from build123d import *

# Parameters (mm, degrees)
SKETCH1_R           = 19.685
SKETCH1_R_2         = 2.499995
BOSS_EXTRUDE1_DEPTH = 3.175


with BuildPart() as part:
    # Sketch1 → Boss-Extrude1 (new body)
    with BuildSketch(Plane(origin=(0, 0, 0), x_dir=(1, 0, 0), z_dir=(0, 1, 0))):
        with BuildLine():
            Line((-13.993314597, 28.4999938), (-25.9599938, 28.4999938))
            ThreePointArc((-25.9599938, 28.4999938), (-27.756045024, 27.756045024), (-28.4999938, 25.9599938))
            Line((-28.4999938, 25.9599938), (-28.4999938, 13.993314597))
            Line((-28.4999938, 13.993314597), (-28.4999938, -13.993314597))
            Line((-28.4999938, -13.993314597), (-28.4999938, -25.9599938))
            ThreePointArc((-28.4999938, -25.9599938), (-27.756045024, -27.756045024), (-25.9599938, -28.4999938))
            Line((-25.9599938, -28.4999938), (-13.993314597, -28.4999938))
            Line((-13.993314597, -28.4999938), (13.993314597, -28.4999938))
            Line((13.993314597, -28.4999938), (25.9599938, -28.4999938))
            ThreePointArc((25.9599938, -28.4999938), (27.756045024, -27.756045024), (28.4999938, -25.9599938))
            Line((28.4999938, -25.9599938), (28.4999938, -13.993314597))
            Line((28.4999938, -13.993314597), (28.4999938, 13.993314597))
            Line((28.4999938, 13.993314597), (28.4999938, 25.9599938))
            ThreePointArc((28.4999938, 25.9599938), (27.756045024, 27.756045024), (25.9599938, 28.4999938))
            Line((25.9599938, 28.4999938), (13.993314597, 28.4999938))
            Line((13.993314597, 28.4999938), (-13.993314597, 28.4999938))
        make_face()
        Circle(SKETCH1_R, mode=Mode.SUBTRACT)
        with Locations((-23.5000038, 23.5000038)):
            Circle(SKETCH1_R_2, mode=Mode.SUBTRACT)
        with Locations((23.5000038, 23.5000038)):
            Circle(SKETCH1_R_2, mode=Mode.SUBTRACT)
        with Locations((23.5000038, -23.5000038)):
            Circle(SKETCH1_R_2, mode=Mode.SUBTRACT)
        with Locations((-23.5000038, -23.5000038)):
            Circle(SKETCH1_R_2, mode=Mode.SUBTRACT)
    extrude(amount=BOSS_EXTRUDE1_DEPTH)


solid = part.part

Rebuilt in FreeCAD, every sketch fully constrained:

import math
import FreeCAD as App
import Part
import Sketcher

V = App.Vector
Q = App.Units.Quantity

doc = App.newDocument("Part")
body = doc.addObject("PartDesign::Body", "Body")

sketch1 = body.newObject("Sketcher::SketchObject", "Sketch")
sketch1.AttachmentSupport = (doc.getObject("XZ_Plane"), [""])
sketch1.MapMode = "FlatFace"
sketch1.addGeometry([
    Part.ArcOfCircle(Part.Circle(V(-26, -26, 0), V(0, 0, 1), 2.5), math.radians(-180), math.radians(-90)),
    Part.LineSegment(V(-28.5, -26, 0), V(-28.5, 26, 0)),
    Part.ArcOfCircle(Part.Circle(V(-26, 26, 0), V(0, 0, 1), 2.5), math.radians(90), math.radians(180)),
    Part.LineSegment(V(-26, 28.5, 0), V(26, 28.5, 0)),
    Part.ArcOfCircle(Part.Circle(V(26, 26, 0), V(0, 0, 1), 2.5), math.radians(0), math.radians(90)),
    Part.LineSegment(V(28.5, 26, 0), V(28.5, -26, 0)),
    Part.ArcOfCircle(Part.Circle(V(26, -26, 0), V(0, 0, 1), 2.5), math.radians(-90), math.radians(0)),
    Part.LineSegment(V(26, -28.5, 0), V(-26, -28.5, 0)),
    Part.Circle(V(-23.5, 23.5, 0), V(0, 0, 1), 2.5),
    Part.Circle(V(23.5, 23.5, 0), V(0, 0, 1), 2.5),
    Part.Circle(V(-23.5, -23.5, 0), V(0, 0, 1), 2.5),
    Part.Circle(V(0, 0, 0), V(0, 0, 1), 19.7),
    Part.Circle(V(23.5, -23.5, 0), V(0, 0, 1), 2.5),
], False)
sketch1.addConstraint([
    Sketcher.Constraint("Tangent", 0, 1, 1, 1),
    Sketcher.Constraint("Tangent", 1, 2, 2, 2),
    Sketcher.Constraint("Tangent", 2, 1, 3, 1),
    Sketcher.Constraint("Tangent", 3, 2, 4, 2),
    Sketcher.Constraint("Tangent", 4, 1, 5, 1),
    Sketcher.Constraint("Tangent", 5, 2, 6, 2),
    Sketcher.Constraint("Tangent", 6, 1, 7, 1),
    Sketcher.Constraint("Tangent", 7, 2, 0, 2),
    Sketcher.Constraint("Vertical", 1),
    Sketcher.Constraint("Horizontal", 3),
    Sketcher.Constraint("Vertical", 5),
    Sketcher.Constraint("Horizontal", 7),
    Sketcher.Constraint("Coincident", 11, 3, -1, 1),
    Sketcher.Constraint("Equal", 0, 2),
    Sketcher.Constraint("Equal", 2, 4),
    Sketcher.Constraint("Equal", 4, 6),
    Sketcher.Constraint("Equal", 8, 9),
    Sketcher.Constraint("Equal", 9, 10),
    Sketcher.Constraint("Equal", 10, 12),
    Sketcher.Constraint("Symmetric", 0, 3, 4, 3, -1, 1),
    Sketcher.Constraint("Symmetric", 9, 3, 10, 3, -1, 1),
    Sketcher.Constraint("Symmetric", 8, 3, 12, 3, -1, 1),
    Sketcher.Constraint("Symmetric", 8, 3, 9, 3, -2),
    Sketcher.Constraint("Equal", 7, 1),
    Sketcher.Constraint("Radius", 0, Q("0.1 in")),
    Sketcher.Constraint("Diameter", 11, Q("1.55 in")),
    Sketcher.Constraint("Diameter", 8, Q("4.99999 mm")),
    Sketcher.Constraint("DistanceX", 3, 1, 3, 2, Q("51.919988 mm")),
    Sketcher.Constraint("DistanceX", 2, 3, 8, 3, Q("2.45999 mm")),
    Sketcher.Constraint("DistanceY", 8, 3, 2, 3, Q("2.45999 mm")),
])
pad1 = body.newObject("PartDesign::Pad", "Pad")
pad1.Profile = sketch1
pad1.Length = Q("0.125 in")
pad1.Reversed = True

doc.recompute()
